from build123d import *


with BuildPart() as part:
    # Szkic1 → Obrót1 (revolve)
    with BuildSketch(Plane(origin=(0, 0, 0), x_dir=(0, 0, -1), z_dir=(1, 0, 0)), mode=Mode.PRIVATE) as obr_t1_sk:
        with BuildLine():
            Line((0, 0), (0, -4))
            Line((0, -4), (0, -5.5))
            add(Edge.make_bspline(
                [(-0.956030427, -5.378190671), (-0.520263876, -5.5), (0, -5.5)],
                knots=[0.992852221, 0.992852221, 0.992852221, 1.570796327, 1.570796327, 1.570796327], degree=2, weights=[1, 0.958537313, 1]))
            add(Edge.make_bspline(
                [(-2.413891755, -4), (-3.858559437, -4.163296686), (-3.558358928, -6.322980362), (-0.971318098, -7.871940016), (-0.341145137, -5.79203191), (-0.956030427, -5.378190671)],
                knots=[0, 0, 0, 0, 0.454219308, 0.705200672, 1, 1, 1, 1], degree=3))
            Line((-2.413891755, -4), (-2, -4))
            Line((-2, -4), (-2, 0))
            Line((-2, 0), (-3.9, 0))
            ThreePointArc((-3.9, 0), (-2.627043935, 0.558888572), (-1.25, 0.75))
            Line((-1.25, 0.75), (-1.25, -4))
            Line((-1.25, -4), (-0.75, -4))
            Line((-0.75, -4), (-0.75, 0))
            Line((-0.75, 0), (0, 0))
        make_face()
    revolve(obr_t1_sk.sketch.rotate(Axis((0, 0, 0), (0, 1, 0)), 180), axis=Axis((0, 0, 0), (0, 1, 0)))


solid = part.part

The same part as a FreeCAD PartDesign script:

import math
import FreeCAD as App
import Part
import Sketcher
from FreeCAD import Vector

doc = App.newDocument("Part")
body = doc.addObject("PartDesign::Body", "Body")

sketch1 = body.newObject("Sketcher::SketchObject", "Sketch")
sketch1.AttachmentSupport = (doc.getObject("YZ_Plane"), [""])
sketch1.MapMode = "FlatFace"
sketch1.addGeometry(Part.LineSegment(Vector(-5.5, 0, 0), Vector(0, 0, 0)), False)
sketch1.addGeometry(Part.LineSegment(Vector(0, 0, 0), Vector(0, 0.75, 0)), False)
sketch1.addGeometry(Part.LineSegment(Vector(0, 0.75, 0), Vector(-4, 0.75, 0)), False)
sketch1.addGeometry(Part.LineSegment(Vector(-4, 0.75, 0), Vector(-4, 1.25, 0)), False)
sketch1.addGeometry(Part.LineSegment(Vector(-4, 1.25, 0), Vector(0.75, 1.25, 0)), False)
sketch1.addGeometry(Part.ArcOfCircle(Part.Circle(Vector(-4.306667, 1.25, 0), Vector(0, 0, 1), 5.056667), math.radians(0), math.radians(31.605028)), False)
sketch1.addGeometry(Part.LineSegment(Vector(0, 3.9, 0), Vector(0, 2, 0)), False)
sketch1.addGeometry(Part.LineSegment(Vector(0, 2, 0), Vector(-4, 2, 0)), False)
sketch1.addGeometry(Part.LineSegment(Vector(-4, 2, 0), Vector(-4, 2.413892, 0)), False)
sketch1.addGeometry(Part.BSplineCurve([Vector(-4, 2.413892, 0), Vector(-4.163297, 3.858559, 0), Vector(-6.32298, 3.558359, 0), Vector(-7.87194, 0.971318, 0), Vector(-5.792032, 0.341145, 0), Vector(-5.378191, 0.95603, 0)], [4, 1, 1, 4], [0, 0.454219308, 0.705200672, 1], False, 3, [1, 1, 1, 1, 1, 1], False), False)
sketch1.addGeometry(Part.BSplineCurve([Vector(-5.378191, 0.95603, 0), Vector(-5.5, 0.520264, 0), Vector(-5.5, 0, 0)], [3, 3], [0.992852221, 1.570796327], False, 2, [1, 0.958537313, 1], False), False)
sketch1.addConstraint(Sketcher.Constraint("Block", 9))
sketch1.addConstraint(Sketcher.Constraint("Block", 10))
sketch1.addConstraint(Sketcher.Constraint("Coincident", 0, 2, 1, 1))
sketch1.addConstraint(Sketcher.Constraint("Coincident", 1, 2, 2, 1))
sketch1.addConstraint(Sketcher.Constraint("Coincident", 2, 2, 3, 1))
sketch1.addConstraint(Sketcher.Constraint("Coincident", 3, 2, 4, 1))
sketch1.addConstraint(Sketcher.Constraint("Coincident", 4, 2, 5, 1))
sketch1.addConstraint(Sketcher.Constraint("Coincident", 5, 2, 6, 1))
sketch1.addConstraint(Sketcher.Constraint("Coincident", 6, 2, 7, 1))
sketch1.addConstraint(Sketcher.Constraint("Coincident", 7, 2, 8, 1))
sketch1.addConstraint(Sketcher.Constraint("Coincident", 8, 2, 9, 1))
sketch1.addConstraint(Sketcher.Constraint("Coincident", 10, 2, 0, 1))
sketch1.addConstraint(Sketcher.Constraint("Horizontal", 0))
sketch1.addConstraint(Sketcher.Constraint("Vertical", 1))
sketch1.addConstraint(Sketcher.Constraint("Horizontal", 2))
sketch1.addConstraint(Sketcher.Constraint("Vertical", 3))
sketch1.addConstraint(Sketcher.Constraint("Horizontal", 4))
sketch1.addConstraint(Sketcher.Constraint("Vertical", 6))
sketch1.addConstraint(Sketcher.Constraint("Horizontal", 7))
sketch1.addConstraint(Sketcher.Constraint("Vertical", 8))
sketch1.addConstraint(Sketcher.Constraint("PointOnObject", 1, 2, -2))
sketch1.addConstraint(Sketcher.Constraint("PointOnObject", 5, 2, -2))
sketch1.addConstraint(Sketcher.Constraint("Horizontal", 5, 3, 3, 2))
sketch1.addConstraint(Sketcher.Constraint("Vertical", 3, 2, 7, 2))
sketch1.addConstraint(Sketcher.Constraint("DistanceY", 3, 1, 3, 2, 0.5))
sketch1.addConstraint(Sketcher.Constraint("DistanceY", 6, 2, 6, 1, 1.9))
sketch1.addConstraint(Sketcher.Constraint("DistanceY", -1, 1, 6, 2, 2.0))
sketch1.addConstraint(Sketcher.Constraint("DistanceX", 4, 1, 4, 2, 4.75))
sketch1.addConstraint(Sketcher.Constraint("DistanceY", 1, 1, 1, 2, 0.75))
revolution = body.newObject("PartDesign::Revolution", "Revolution")
revolution.Profile = sketch1
revolution.ReferenceAxis = (sketch1, ["H_Axis"])
revolution.Angle = 360

doc.recompute()
